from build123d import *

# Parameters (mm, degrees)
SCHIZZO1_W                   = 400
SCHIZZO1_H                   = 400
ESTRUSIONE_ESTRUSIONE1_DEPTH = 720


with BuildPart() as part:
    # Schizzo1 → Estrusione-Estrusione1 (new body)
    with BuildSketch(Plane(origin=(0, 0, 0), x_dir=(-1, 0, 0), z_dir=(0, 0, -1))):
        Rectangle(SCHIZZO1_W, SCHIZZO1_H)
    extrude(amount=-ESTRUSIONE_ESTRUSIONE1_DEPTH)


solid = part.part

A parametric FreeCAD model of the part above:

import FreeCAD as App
import Part
import Sketcher
from FreeCAD import Vector
Q = App.Units.Quantity

doc = App.newDocument("Part")
body = doc.addObject("PartDesign::Body", "Body")

# Sketch on XY plane
sketch1 = body.newObject("Sketcher::SketchObject", "Sketch")
sketch1.AttachmentSupport = (doc.getObject("XY_Plane"), [""])
sketch1.MapMode = "FlatFace"
sketch1.addGeometry([
    Part.LineSegment(Vector(200, 200, 0), Vector(200, -200, 0)),
    Part.LineSegment(Vector(200, -200, 0), Vector(-200, -200, 0)),
    Part.LineSegment(Vector(-200, -200, 0), Vector(-200, 200, 0)),
    Part.LineSegment(Vector(-200, 200, 0), Vector(200, 200, 0)),
], False)
sketch1.addConstraint([
    Sketcher.Constraint("Coincident", 0, 2, 1, 1),
    Sketcher.Constraint("Coincident", 1, 2, 2, 1),
    Sketcher.Constraint("Coincident", 2, 2, 3, 1),
    Sketcher.Constraint("Coincident", 3, 2, 0, 1),
    Sketcher.Constraint("Vertical", 0),
    Sketcher.Constraint("Horizontal", 1),
    Sketcher.Constraint("Vertical", 2),
    Sketcher.Constraint("Horizontal", 3),
    Sketcher.Constraint("Symmetric", 0, 2, 2, 2, -1, 1),
    Sketcher.Constraint("Equal", 3, 0),
    Sketcher.Constraint("DistanceX", 1, 2, 1, 1, Q("400 mm")),
])
pad1 = body.newObject("PartDesign::Pad", "Pad")
pad1.Profile = sketch1
pad1.Length = 720

doc.recompute()
